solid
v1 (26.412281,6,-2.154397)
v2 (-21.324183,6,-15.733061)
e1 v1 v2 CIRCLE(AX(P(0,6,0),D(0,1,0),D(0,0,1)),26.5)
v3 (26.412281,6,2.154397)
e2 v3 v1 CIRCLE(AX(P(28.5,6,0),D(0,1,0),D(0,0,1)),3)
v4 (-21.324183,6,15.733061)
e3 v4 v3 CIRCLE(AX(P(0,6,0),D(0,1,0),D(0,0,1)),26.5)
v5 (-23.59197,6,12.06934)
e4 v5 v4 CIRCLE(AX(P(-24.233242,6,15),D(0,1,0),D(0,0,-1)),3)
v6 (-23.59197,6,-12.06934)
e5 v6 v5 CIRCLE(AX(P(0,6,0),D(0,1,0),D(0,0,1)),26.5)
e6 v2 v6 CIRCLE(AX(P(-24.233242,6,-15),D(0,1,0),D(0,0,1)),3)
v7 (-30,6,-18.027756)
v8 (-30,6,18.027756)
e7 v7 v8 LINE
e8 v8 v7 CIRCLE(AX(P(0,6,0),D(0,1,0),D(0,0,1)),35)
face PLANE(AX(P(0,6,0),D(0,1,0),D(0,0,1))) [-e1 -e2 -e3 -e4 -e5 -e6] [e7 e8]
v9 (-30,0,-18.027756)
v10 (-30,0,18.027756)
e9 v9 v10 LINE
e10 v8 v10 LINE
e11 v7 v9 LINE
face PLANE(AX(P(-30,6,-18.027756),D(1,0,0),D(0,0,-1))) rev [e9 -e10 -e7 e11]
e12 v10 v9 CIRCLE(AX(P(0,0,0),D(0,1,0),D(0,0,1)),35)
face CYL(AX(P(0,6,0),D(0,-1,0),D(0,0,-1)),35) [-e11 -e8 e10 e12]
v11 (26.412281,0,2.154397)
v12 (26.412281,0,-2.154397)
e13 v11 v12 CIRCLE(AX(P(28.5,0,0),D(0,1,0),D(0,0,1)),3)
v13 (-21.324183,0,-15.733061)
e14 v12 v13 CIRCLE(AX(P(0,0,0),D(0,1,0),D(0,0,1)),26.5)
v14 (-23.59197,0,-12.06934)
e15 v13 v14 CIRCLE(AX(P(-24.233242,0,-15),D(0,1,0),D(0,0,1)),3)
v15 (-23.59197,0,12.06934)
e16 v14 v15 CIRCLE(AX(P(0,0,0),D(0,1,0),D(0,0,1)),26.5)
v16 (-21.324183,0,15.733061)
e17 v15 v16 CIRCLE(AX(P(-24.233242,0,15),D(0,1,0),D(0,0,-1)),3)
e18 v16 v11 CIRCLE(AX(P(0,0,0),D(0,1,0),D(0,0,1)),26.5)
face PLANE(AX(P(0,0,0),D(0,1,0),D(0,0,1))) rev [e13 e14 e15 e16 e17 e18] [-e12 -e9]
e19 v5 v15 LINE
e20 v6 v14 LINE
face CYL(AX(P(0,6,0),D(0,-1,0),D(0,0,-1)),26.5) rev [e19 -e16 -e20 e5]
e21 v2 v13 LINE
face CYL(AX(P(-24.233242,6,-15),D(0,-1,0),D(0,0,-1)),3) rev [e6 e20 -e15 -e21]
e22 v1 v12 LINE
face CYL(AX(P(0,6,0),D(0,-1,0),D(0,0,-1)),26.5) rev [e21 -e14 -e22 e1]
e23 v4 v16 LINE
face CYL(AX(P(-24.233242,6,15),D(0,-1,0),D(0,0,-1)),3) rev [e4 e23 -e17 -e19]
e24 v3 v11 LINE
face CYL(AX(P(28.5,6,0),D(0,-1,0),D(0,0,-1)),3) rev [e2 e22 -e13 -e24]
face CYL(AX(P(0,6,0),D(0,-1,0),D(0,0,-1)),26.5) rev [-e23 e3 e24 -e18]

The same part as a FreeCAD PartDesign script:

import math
import FreeCAD as App
import Part
import Sketcher
from FreeCAD import Vector
Q = App.Units.Quantity

doc = App.newDocument("Part")
params = doc.addObject("Spreadsheet::Sheet", "Params")
for row, (alias, value) in enumerate([
    ("sketch1_radius", "35 mm"),
    ("sketch1_radius2", "3 mm"),
    ("sketch1_radius3", "26.5 mm"),
    ("pad1_length", "6 mm"),
], start=1):
    params.set(f"A{row}", alias)
    params.set(f"B{row}", "=" + value)
    params.setAlias(f"B{row}", alias)

body = doc.addObject("PartDesign::Body", "Body")

# Sketch on XZ plane
sketch1 = body.newObject("Sketcher::SketchObject", "Sketch")
sketch1.AttachmentSupport = (doc.getObject("XZ_Plane"), [""])
sketch1.MapMode = "FlatFace"
sketch1.addGeometry([
    Part.LineSegment(Vector(-30, -18.027756, 0), Vector(-30, 18.027756, 0)),  # 0
    Part.ArcOfCircle(Part.Circle(Vector(0, 0, 0), Vector(0, 0, 1), 35), math.radians(-148.997281), math.radians(148.997281)),  # 1
    Part.ArcOfCircle(Part.Circle(Vector(-24.233242, -15, 0), Vector(0, 0, 1), 3), math.radians(77.657372), math.radians(345.856356)),  # 2
    Part.ArcOfCircle(Part.Circle(Vector(0, 0, 0), Vector(0, 0, 1), 26.5), math.radians(-143.579957), math.radians(-4.66318)),  # 3
    Part.ArcOfCircle(Part.Circle(Vector(28.5, 0, 0), Vector(0, 0, 1), 3), math.radians(-134.099492), math.radians(134.099492)),  # 4
    Part.ArcOfCircle(Part.Circle(Vector(0, 0, 0), Vector(0, 0, 1), 26.5), math.radians(4.66318), math.radians(143.579957)),  # 5
    Part.ArcOfCircle(Part.Circle(Vector(-24.233242, 15, 0), Vector(0, 0, 1), 3), math.radians(14.143644), math.radians(282.342628)),  # 6
    Part.ArcOfCircle(Part.Circle(Vector(0, 0, 0), Vector(0, 0, 1), 26.5), math.radians(152.906316), math.radians(207.093684)),  # 7
], False)
sketch1.addConstraint([
    Sketcher.Constraint("Coincident", 0, 1, 1, 1),
    Sketcher.Constraint("Coincident", 1, 2, 0, 2),
    Sketcher.Constraint("Coincident", 2, 2, 3, 1),
    Sketcher.Constraint("Coincident", 3, 2, 4, 1),
    Sketcher.Constraint("Coincident", 4, 2, 5, 1),
    Sketcher.Constraint("Coincident", 5, 2, 6, 1),
    Sketcher.Constraint("Coincident", 6, 2, 7, 1),
    Sketcher.Constraint("Coincident", 7, 2, 2, 1),
    Sketcher.Constraint("Vertical", 0),
    Sketcher.Constraint("Coincident", 1, 3, -1, 1),
    Sketcher.Constraint("Coincident", 3, 3, -1, 1),
    Sketcher.Constraint("Coincident", 5, 3, -1, 1),
    Sketcher.Constraint("Coincident", 7, 3, -1, 1),
    Sketcher.Constraint("Equal", 2, 4),
    Sketcher.Constraint("Equal", 3, 5),
    Sketcher.Constraint("Equal", 4, 6),
    Sketcher.Constraint("Equal", 5, 7),
    Sketcher.Constraint("Symmetric", 2, 3, 6, 3, -1),
    Sketcher.Constraint("PointOnObject", 4, 3, -1),
    Sketcher.Constraint("Radius", 1, Q("35 mm")),
    Sketcher.Constraint("Radius", 2, Q("3 mm")),
    Sketcher.Constraint("Radius", 3, Q("26.5 mm")),
    Sketcher.Constraint("DistanceY", 2, 3, -1, 1, Q("15 mm")),
    Sketcher.Constraint("DistanceX", 0, 1, -1, 1, Q("30 mm")),
    Sketcher.Constraint("DistanceX", -1, 1, 4, 3, Q("28.5 mm")),
    Sketcher.Constraint("DistanceX", 2, 3, -1, 1, Q("24.233242 mm")),
])
sketch1.setExpression("Constraints[19]", "Params.sketch1_radius")
sketch1.setExpression("Constraints[20]", "Params.sketch1_radius2")
sketch1.setExpression("Constraints[21]", "Params.sketch1_radius3")
pad1 = body.newObject("PartDesign::Pad", "Pad")
pad1.Profile = sketch1
pad1.setExpression("Length", "Params.pad1_length")
pad1.Reversed = True

doc.recompute()
